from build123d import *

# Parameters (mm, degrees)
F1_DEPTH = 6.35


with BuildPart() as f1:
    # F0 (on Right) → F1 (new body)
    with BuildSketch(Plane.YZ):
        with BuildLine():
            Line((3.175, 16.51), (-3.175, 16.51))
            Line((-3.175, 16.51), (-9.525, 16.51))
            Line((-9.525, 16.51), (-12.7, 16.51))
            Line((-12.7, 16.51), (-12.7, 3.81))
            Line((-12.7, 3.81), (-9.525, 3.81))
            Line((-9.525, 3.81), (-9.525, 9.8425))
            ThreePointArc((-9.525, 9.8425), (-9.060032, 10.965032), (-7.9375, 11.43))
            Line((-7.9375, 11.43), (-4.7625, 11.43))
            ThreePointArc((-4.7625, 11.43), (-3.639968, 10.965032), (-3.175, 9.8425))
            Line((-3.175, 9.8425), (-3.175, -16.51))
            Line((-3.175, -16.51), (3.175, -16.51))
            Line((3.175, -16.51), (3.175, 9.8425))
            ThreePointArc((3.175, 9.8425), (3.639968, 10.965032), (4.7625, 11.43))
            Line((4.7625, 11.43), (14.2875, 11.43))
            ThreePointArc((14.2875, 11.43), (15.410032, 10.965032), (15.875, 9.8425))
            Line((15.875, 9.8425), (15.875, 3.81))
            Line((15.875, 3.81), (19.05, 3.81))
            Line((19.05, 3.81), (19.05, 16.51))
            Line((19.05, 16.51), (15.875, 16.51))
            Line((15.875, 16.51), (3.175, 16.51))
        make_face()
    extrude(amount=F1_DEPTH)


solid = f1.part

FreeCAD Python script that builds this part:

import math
import FreeCAD as App
import Part
import Sketcher

V = App.Vector
Q = App.Units.Quantity

doc = App.newDocument("Part")
params = doc.addObject("Spreadsheet::Sheet", "Params")
for row, (alias, value) in enumerate([
    ("sketch1_height", "0.5 in"),
    ("sketch1_radius", "0.0625 in"),
    ("sketch1_width", "0.25 in"),
    ("sketch1_width2", "1.25 in"),
    ("pad1_length", "0.25 in"),
], start=1):
    params.set(f"A{row}", alias)
    params.set(f"B{row}", "=" + value)
    params.setAlias(f"B{row}", alias)

body = doc.addObject("PartDesign::Body", "Body")

# Sketch on YZ plane
sketch1 = body.newObject("Sketcher::SketchObject", "Sketch")
sketch1.AttachmentSupport = (doc.getObject("YZ_Plane"), [""])
sketch1.MapMode = "FlatFace"
sketch1.addGeometry([
    Part.LineSegment(V(-12.7, 16.5, 0), V(-12.7, 3.8, 0)),  # 0
    Part.LineSegment(V(-12.7, 3.8, 0), V(-9.5, 3.8, 0)),  # 1
    Part.LineSegment(V(-9.5, 3.8, 0), V(-9.5, 9.8, 0)),  # 2
    Part.ArcOfCircle(Part.Circle(V(-7.9, 9.8, 0), V(0, 0, 1), 1.6), math.radians(90), math.radians(180)),  # 3
    Part.LineSegment(V(-7.9, 11.4, 0), V(-4.8, 11.4, 0)),  # 4
    Part.ArcOfCircle(Part.Circle(V(-4.8, 9.8, 0), V(0, 0, 1), 1.6), math.radians(0), math.radians(90)),  # 5
    Part.LineSegment(V(-3.2, 9.8, 0), V(-3.2, -16.5, 0)),  # 6
    Part.LineSegment(V(-3.2, -16.5, 0), V(3.2, -16.5, 0)),  # 7
    Part.LineSegment(V(3.2, -16.5, 0), V(3.2, 9.8, 0)),  # 8
    Part.ArcOfCircle(Part.Circle(V(4.8, 9.8, 0), V(0, 0, 1), 1.6), math.radians(90), math.radians(180)),  # 9
    Part.LineSegment(V(4.8, 11.4, 0), V(14.3, 11.4, 0)),  # 10
    Part.ArcOfCircle(Part.Circle(V(14.3, 9.8, 0), V(0, 0, 1), 1.6), math.radians(0), math.radians(90)),  # 11
    Part.LineSegment(V(15.9, 9.8, 0), V(15.9, 3.8, 0)),  # 12
    Part.LineSegment(V(15.9, 3.8, 0), V(19.1, 3.8, 0)),  # 13
    Part.LineSegment(V(19.1, 3.8, 0), V(19.1, 16.5, 0)),  # 14
    Part.LineSegment(V(19.1, 16.5, 0), V(-12.7, 16.5, 0)),  # 15
], False)
sketch1.addConstraint([
    Sketcher.Constraint("Coincident", 0, 2, 1, 1),
    Sketcher.Constraint("Coincident", 1, 2, 2, 1),
    Sketcher.Constraint("Tangent", 2, 2, 3, 2),
    Sketcher.Constraint("Tangent", 3, 1, 4, 1),
    Sketcher.Constraint("Tangent", 4, 2, 5, 2),
    Sketcher.Constraint("Tangent", 5, 1, 6, 1),
    Sketcher.Constraint("Coincident", 6, 2, 7, 1),
    Sketcher.Constraint("Coincident", 7, 2, 8, 1),
    Sketcher.Constraint("Tangent", 8, 2, 9, 2),
    Sketcher.Constraint("Tangent", 9, 1, 10, 1),
    Sketcher.Constraint("Tangent", 10, 2, 11, 2),
    Sketcher.Constraint("Tangent", 11, 1, 12, 1),
    Sketcher.Constraint("Coincident", 12, 2, 13, 1),
    Sketcher.Constraint("Coincident", 13, 2, 14, 1),
    Sketcher.Constraint("Coincident", 14, 2, 15, 1),
    Sketcher.Constraint("Coincident", 15, 2, 0, 1),
    Sketcher.Constraint("Vertical", 0),
    Sketcher.Constraint("Horizontal", 1),
    Sketcher.Constraint("Vertical", 2),
    Sketcher.Constraint("Horizontal", 4),
    Sketcher.Constraint("Vertical", 6),
    Sketcher.Constraint("Horizontal", 7),
    Sketcher.Constraint("Vertical", 8),
    Sketcher.Constraint("Horizontal", 10),
    Sketcher.Constraint("Vertical", 12),
    Sketcher.Constraint("Horizontal", 13),
    Sketcher.Constraint("Vertical", 14),
    Sketcher.Constraint("Horizontal", 15),
    Sketcher.Constraint("Equal", 3, 5),
    Sketcher.Constraint("Equal", 5, 9),
    Sketcher.Constraint("Equal", 9, 11),
    Sketcher.Constraint("Symmetric", 5, 3, 9, 3, -2),
    Sketcher.Constraint("Horizontal", 1, 2, 12, 2),
    Sketcher.Constraint("Equal", 1, 4),
    Sketcher.Constraint("Equal", 4, 13),
    Sketcher.Constraint("DistanceY", 0, 2, 0, 1, Q("0.5 in")),
    Sketcher.Constraint("Radius", 3, Q("0.0625 in")),
    Sketcher.Constraint("DistanceX", 7, 1, 7, 2, Q("0.25 in")),
    Sketcher.Constraint("DistanceX", 15, 2, 15, 1, Q("1.25 in")),
    Sketcher.Constraint("DistanceX", 0, 2, -1, 1, Q("0.5 in")),
    Sketcher.Constraint("DistanceY", 1, 2, 3, 1, Q("0.3 in")),
    Sketcher.Constraint("DistanceY", 6, 2, 1, 2, Q("0.8 in")),
    Sketcher.Constraint("DistanceY", -1, 1, 0, 2, Q("0.15 in")),
])
sketch1.setExpression("Constraints[35]", "Params.sketch1_height")
sketch1.setExpression("Constraints[36]", "Params.sketch1_radius")
sketch1.setExpression("Constraints[37]", "Params.sketch1_width")
sketch1.setExpression("Constraints[38]", "Params.sketch1_width2")
pad1 = body.newObject("PartDesign::Pad", "Pad")
pad1.Profile = sketch1
pad1.setExpression("Length", "Params.pad1_length")

doc.recompute()
